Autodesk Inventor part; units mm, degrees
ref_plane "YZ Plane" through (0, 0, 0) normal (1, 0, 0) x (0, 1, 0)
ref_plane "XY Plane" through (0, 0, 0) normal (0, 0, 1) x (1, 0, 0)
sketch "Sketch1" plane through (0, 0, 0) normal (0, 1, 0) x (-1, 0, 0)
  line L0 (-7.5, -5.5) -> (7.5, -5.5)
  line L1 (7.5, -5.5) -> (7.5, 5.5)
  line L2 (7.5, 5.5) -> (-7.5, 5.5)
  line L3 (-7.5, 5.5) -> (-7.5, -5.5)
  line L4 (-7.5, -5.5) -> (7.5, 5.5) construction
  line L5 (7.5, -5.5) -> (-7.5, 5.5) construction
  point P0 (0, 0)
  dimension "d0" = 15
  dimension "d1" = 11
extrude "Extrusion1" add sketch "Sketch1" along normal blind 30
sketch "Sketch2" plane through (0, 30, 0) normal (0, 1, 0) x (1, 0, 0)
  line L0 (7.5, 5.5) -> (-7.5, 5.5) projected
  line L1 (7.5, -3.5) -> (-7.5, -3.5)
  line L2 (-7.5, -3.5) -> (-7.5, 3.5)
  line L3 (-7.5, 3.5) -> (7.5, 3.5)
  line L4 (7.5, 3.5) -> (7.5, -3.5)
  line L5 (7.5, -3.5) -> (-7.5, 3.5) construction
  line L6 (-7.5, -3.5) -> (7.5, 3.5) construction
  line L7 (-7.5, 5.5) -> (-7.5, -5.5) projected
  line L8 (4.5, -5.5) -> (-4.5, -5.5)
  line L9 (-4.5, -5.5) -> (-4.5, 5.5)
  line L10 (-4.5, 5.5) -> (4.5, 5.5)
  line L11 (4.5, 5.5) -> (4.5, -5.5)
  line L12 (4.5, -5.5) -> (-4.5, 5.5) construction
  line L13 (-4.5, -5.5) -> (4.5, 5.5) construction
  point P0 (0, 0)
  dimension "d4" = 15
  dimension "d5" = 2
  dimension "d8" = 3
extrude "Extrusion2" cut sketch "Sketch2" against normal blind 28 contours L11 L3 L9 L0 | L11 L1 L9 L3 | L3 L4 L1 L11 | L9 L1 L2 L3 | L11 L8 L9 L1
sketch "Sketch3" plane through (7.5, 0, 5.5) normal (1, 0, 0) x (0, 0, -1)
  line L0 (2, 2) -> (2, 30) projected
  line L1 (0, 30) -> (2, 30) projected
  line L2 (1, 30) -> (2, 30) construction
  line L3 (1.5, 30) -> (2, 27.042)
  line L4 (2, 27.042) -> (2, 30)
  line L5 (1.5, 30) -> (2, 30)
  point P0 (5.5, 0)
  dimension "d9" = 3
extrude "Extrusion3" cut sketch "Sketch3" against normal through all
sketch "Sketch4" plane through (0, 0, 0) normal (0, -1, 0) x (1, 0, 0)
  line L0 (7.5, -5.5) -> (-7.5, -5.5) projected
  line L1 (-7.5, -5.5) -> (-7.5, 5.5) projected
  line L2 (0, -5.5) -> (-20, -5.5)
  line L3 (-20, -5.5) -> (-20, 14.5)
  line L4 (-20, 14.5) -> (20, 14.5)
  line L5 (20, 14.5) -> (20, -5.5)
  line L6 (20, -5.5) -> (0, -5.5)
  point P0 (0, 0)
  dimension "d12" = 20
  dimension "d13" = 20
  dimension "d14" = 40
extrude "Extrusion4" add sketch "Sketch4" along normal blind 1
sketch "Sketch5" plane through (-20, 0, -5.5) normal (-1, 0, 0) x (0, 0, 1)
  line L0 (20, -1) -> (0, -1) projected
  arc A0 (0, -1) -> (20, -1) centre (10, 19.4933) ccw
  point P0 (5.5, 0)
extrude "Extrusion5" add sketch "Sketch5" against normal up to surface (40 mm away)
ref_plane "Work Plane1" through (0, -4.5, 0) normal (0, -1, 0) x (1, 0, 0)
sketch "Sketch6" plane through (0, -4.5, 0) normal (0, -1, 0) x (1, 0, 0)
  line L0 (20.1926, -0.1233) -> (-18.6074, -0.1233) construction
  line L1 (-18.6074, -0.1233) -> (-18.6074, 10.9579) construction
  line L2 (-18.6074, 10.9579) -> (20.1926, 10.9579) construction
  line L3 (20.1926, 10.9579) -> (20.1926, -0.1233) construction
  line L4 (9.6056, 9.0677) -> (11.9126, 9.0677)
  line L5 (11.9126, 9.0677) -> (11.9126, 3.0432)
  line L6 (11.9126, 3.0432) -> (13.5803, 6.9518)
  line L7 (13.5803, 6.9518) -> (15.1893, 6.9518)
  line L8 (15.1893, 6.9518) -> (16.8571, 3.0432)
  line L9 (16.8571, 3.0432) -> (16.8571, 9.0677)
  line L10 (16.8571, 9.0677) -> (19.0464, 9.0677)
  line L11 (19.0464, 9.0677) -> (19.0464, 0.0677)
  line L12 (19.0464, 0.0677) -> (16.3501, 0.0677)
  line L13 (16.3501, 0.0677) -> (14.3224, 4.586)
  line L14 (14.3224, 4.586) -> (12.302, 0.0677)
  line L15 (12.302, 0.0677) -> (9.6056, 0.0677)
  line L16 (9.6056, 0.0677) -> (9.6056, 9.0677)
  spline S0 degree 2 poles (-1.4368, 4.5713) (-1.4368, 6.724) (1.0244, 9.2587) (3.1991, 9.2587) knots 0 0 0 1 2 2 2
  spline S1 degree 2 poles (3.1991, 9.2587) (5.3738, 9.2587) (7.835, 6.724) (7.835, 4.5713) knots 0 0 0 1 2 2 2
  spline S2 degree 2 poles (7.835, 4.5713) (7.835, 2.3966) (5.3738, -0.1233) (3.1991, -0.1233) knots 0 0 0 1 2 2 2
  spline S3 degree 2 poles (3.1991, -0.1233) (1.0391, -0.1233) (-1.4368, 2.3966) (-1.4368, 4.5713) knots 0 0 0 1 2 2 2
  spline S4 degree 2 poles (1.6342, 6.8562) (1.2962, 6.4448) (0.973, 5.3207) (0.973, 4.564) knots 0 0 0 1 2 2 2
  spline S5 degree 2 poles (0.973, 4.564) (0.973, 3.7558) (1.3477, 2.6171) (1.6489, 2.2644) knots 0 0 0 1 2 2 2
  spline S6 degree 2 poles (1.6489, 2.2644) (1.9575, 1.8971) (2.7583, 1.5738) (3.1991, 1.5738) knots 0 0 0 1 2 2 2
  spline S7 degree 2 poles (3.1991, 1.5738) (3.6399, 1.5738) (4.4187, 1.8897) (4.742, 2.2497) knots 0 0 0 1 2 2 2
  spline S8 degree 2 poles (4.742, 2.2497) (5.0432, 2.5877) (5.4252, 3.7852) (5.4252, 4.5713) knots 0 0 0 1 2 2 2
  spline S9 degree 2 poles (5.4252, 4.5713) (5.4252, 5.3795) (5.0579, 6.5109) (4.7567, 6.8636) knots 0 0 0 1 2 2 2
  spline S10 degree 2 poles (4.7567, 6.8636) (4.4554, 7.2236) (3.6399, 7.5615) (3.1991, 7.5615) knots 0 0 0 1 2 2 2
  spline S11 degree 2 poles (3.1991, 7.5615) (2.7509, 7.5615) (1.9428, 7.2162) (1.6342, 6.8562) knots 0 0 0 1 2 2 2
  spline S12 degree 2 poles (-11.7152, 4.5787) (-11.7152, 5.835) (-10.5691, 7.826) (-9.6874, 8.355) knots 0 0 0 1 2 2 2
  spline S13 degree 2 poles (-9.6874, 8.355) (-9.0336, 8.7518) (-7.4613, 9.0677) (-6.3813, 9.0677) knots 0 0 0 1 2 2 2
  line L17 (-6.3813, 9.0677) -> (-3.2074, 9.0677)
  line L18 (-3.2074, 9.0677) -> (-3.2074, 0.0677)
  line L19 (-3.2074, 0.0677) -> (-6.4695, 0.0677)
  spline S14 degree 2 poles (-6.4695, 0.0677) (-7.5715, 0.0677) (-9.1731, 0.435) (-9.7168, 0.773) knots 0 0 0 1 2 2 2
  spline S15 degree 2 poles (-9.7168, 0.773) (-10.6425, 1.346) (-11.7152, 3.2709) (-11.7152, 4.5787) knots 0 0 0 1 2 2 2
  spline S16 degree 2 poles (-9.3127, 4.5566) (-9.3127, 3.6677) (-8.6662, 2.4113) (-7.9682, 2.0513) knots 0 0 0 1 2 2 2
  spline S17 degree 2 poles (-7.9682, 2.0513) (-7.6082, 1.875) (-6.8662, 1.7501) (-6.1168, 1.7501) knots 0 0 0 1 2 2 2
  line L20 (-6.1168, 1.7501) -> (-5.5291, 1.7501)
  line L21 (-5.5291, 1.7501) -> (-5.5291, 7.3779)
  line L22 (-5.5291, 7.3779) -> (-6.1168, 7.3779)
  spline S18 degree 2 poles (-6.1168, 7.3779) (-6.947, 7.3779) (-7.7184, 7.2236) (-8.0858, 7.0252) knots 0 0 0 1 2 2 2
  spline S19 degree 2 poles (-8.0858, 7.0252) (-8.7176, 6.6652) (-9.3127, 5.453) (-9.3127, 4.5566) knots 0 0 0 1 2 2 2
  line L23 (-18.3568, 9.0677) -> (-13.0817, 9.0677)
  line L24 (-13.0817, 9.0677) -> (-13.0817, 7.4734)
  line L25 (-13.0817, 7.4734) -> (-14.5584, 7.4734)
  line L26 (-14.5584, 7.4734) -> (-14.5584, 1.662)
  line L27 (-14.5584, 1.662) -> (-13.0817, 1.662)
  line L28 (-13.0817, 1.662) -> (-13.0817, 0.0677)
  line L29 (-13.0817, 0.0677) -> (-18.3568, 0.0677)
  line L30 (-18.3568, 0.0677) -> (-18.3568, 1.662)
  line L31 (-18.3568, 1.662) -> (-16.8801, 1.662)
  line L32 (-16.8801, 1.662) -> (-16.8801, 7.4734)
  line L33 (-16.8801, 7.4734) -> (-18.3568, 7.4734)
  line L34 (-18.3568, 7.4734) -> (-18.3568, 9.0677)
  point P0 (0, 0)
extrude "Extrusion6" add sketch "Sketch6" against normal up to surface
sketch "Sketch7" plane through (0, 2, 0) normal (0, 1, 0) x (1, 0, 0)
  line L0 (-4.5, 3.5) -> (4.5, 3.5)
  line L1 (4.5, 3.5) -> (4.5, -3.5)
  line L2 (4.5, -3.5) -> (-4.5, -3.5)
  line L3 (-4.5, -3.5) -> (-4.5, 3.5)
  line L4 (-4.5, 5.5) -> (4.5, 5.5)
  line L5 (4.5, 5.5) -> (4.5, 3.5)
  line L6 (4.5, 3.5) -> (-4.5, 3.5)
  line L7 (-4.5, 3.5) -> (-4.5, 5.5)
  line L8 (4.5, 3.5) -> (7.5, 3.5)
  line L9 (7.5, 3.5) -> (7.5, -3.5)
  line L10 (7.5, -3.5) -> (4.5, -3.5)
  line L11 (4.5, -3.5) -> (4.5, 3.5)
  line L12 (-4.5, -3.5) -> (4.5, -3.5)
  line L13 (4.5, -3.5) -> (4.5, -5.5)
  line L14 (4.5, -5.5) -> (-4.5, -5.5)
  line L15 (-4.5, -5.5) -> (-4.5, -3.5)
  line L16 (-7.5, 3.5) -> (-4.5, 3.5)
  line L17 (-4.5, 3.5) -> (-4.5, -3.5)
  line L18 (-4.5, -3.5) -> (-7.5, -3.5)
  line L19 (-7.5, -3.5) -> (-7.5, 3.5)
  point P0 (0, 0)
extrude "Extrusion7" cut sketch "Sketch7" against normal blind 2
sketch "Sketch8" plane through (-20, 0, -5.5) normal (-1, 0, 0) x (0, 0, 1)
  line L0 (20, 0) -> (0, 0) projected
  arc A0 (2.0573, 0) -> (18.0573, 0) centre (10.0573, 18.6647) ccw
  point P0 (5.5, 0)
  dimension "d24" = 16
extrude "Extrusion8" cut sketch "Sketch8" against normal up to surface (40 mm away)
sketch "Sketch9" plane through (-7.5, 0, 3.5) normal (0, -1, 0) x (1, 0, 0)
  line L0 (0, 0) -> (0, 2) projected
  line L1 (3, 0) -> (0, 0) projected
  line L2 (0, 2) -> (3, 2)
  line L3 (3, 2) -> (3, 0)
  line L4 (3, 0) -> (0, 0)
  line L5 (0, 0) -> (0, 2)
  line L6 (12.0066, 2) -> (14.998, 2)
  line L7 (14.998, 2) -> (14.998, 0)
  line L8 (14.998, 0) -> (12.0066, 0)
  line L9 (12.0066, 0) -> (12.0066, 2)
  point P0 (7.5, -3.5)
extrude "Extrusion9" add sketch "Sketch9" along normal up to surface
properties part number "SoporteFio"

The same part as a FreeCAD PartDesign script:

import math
import FreeCAD as App
import Part
import Sketcher
from FreeCAD import Vector
Q = App.Units.Quantity

doc = App.newDocument("Part")
body = doc.addObject("PartDesign::Body", "Body")
body.AllowCompound = True

sketch1 = doc.addObject("Sketcher::SketchObject", "Sketch")
body.addObject(sketch1)
sketch1.AttachmentSupport = (doc.XZ_Plane, [""])
sketch1.MapMode = "FlatFace"
sketch1.addGeometry([
    Part.LineSegment(Vector(7.5, 5.5, 0), Vector(7.5, -5.5, 0)),
    Part.LineSegment(Vector(7.5, -5.5, 0), Vector(-7.5, -5.5, 0)),
    Part.LineSegment(Vector(-7.5, -5.5, 0), Vector(-7.5, 5.5, 0)),
    Part.LineSegment(Vector(-7.5, 5.5, 0), Vector(7.5, 5.5, 0)),
], False)
sketch1.addConstraint([
    Sketcher.Constraint("Coincident", 0, 2, 1, 1),
    Sketcher.Constraint("Coincident", 1, 2, 2, 1),
    Sketcher.Constraint("Coincident", 2, 2, 3, 1),
    Sketcher.Constraint("Coincident", 3, 2, 0, 1),
    Sketcher.Constraint("Vertical", 0),
    Sketcher.Constraint("Horizontal", 1),
    Sketcher.Constraint("Vertical", 2),
    Sketcher.Constraint("Horizontal", 3),
    Sketcher.Constraint("Symmetric", 0, 2, 2, 2, -1, 1),
    Sketcher.Constraint("DistanceX", 1, 2, 1, 1, Q("15 mm")),
    Sketcher.Constraint("DistanceY", 0, 2, 0, 1, Q("11 mm")),
])
pad1 = doc.addObject("PartDesign::Pad", "Pad")
body.addObject(pad1)
pad1.Profile = sketch1
pad1.Length = 30
pad1.Reversed = True

sketch2 = doc.addObject("Sketcher::SketchObject", "Sketch001")
body.addObject(sketch2)
sketch2.AttachmentSupport = (doc.XZ_Plane, [""])
sketch2.MapMode = "FlatFace"
sketch2.AttachmentOffset = App.Placement(Vector(0, 0, -30), App.Rotation())
sketch2.addGeometry([
    Part.LineSegment(Vector(4.5, -3.5, 0), Vector(4.5, -5.5, 0)),
    Part.LineSegment(Vector(4.5, -5.5, 0), Vector(-4.5, -5.5, 0)),
    Part.LineSegment(Vector(-4.5, -5.5, 0), Vector(-4.5, -3.5, 0)),
    Part.LineSegment(Vector(-4.5, -3.5, 0), Vector(-7.5, -3.5, 0)),
    Part.LineSegment(Vector(-7.5, -3.5, 0), Vector(-7.5, 3.5, 0)),
    Part.LineSegment(Vector(-7.5, 3.5, 0), Vector(-4.5, 3.5, 0)),
    Part.LineSegment(Vector(-4.5, 3.5, 0), Vector(-4.5, 5.5, 0)),
    Part.LineSegment(Vector(-4.5, 5.5, 0), Vector(4.5, 5.5, 0)),
    Part.LineSegment(Vector(4.5, 5.5, 0), Vector(4.5, 3.5, 0)),
    Part.LineSegment(Vector(4.5, 3.5, 0), Vector(7.5, 3.5, 0)),
    Part.LineSegment(Vector(7.5, 3.5, 0), Vector(7.5, -3.5, 0)),
    Part.LineSegment(Vector(7.5, -3.5, 0), Vector(4.5, -3.5, 0)),
], False)
sketch2.addConstraint([
    Sketcher.Constraint("Coincident", 0, 2, 1, 1),
    Sketcher.Constraint("Coincident", 1, 2, 2, 1),
    Sketcher.Constraint("Coincident", 2, 2, 3, 1),
    Sketcher.Constraint("Coincident", 3, 2, 4, 1),
    Sketcher.Constraint("Coincident", 4, 2, 5, 1),
    Sketcher.Constraint("Coincident", 5, 2, 6, 1),
    Sketcher.Constraint("Coincident", 6, 2, 7, 1),
    Sketcher.Constraint("Coincident", 7, 2, 8, 1),
    Sketcher.Constraint("Coincident", 8, 2, 9, 1),
    Sketcher.Constraint("Coincident", 9, 2, 10, 1),
    Sketcher.Constraint("Coincident", 10, 2, 11, 1),
    Sketcher.Constraint("Coincident", 11, 2, 0, 1),
    Sketcher.Constraint("Vertical", 0),
    Sketcher.Constraint("Horizontal", 1),
    Sketcher.Constraint("Vertical", 2),
    Sketcher.Constraint("Horizontal", 3),
    Sketcher.Constraint("Vertical", 4),
    Sketcher.Constraint("Horizontal", 5),
    Sketcher.Constraint("Vertical", 6),
    Sketcher.Constraint("Horizontal", 7),
    Sketcher.Constraint("Vertical", 8),
    Sketcher.Constraint("Horizontal", 9),
    Sketcher.Constraint("Vertical", 10),
    Sketcher.Constraint("Horizontal", 11),
    Sketcher.Constraint("Symmetric", 0, 2, 6, 2, -1, 1),
    Sketcher.Constraint("Symmetric", 2, 2, 8, 2, -1, 1),
    Sketcher.Constraint("Symmetric", 4, 2, 10, 2, -1, 1),
    Sketcher.Constraint("Symmetric", 5, 2, 8, 2, -2),
    Sketcher.Constraint("DistanceX", 3, 2, 3, 1, Q("3 mm")),
    Sketcher.Constraint("DistanceY", 0, 2, 0, 1, Q("2 mm")),
    Sketcher.Constraint("DistanceX", 1, 2, 1, 1, Q("9 mm")),
    Sketcher.Constraint("DistanceY", 4, 1, 4, 2, Q("7 mm")),
])
pocket1 = doc.addObject("PartDesign::Pocket", "Pocket")
body.addObject(pocket1)
pocket1.Profile = sketch2
pocket1.Length = 28
pocket1.Reversed = True

sketch3 = doc.addObject("Sketcher::SketchObject", "Sketch002")
body.addObject(sketch3)
sketch3.AttachmentSupport = (doc.YZ_Plane, [""])
sketch3.MapMode = "FlatFace"
sketch3.AttachmentOffset = App.Placement(Vector(0, 0, 7.5), App.Rotation())
sketch3.addGeometry([
    Part.LineSegment(Vector(30, 4, 0), Vector(27.042, 3.5, 0)),
    Part.LineSegment(Vector(27.042, 3.5, 0), Vector(30, 3.5, 0)),
    Part.LineSegment(Vector(30, 3.5, 0), Vector(30, 4, 0)),
], False)
sketch3.addConstraint([
    Sketcher.Constraint("Coincident", 0, 2, 1, 1),
    Sketcher.Constraint("Coincident", 1, 2, 2, 1),
    Sketcher.Constraint("Coincident", 2, 2, 0, 1),
    Sketcher.Constraint("Horizontal", 1),
    Sketcher.Constraint("Vertical", 2),
    Sketcher.Constraint("Distance", 0, Q("3 mm")),
    Sketcher.Constraint("DistanceY", 2, 1, 2, 2, Q("0.5 mm")),
    Sketcher.Constraint("DistanceX", -1, 1, 1, 2, Q("30 mm")),
    Sketcher.Constraint("DistanceY", -1, 1, 2, 2, Q("4 mm")),
])
pocket2 = doc.addObject("PartDesign::Pocket", "Pocket001")
body.addObject(pocket2)
pocket2.Profile = sketch3
pocket2.Type = "ThroughAll"

sketch4 = doc.addObject("Sketcher::SketchObject", "Sketch003")
body.addObject(sketch4)
sketch4.AttachmentSupport = (doc.XZ_Plane, [""])
sketch4.MapMode = "FlatFace"
sketch4.addGeometry([
    Part.LineSegment(Vector(-20, -5.5, 0), Vector(20, -5.5, 0)),
    Part.LineSegment(Vector(20, -5.5, 0), Vector(20, 14.5, 0)),
    Part.LineSegment(Vector(20, 14.5, 0), Vector(-20, 14.5, 0)),
    Part.LineSegment(Vector(-20, 14.5, 0), Vector(-20, -5.5, 0)),
], False)
sketch4.addConstraint([
    Sketcher.Constraint("Coincident", 0, 2, 1, 1),
    Sketcher.Constraint("Coincident", 1, 2, 2, 1),
    Sketcher.Constraint("Coincident", 2, 2, 3, 1),
    Sketcher.Constraint("Coincident", 3, 2, 0, 1),
    Sketcher.Constraint("Horizontal", 0),
    Sketcher.Constraint("Vertical", 1),
    Sketcher.Constraint("Horizontal", 2),
    Sketcher.Constraint("Vertical", 3),
    Sketcher.Constraint("DistanceX", 0, 1, 0, 2, Q("40 mm")),
    Sketcher.Constraint("DistanceY", 1, 1, 1, 2, Q("20 mm")),
    Sketcher.Constraint("DistanceX", -1, 1, 0, 2, Q("20 mm")),
    Sketcher.Constraint("DistanceY", 0, 2, -1, 1, Q("5.5 mm")),
])
pad2 = doc.addObject("PartDesign::Pad", "Pad001")
body.addObject(pad2)
pad2.Profile = sketch4
pad2.Length = 1

sketch5 = doc.addObject("Sketcher::SketchObject", "Sketch004")
body.addObject(sketch5)
sketch5.AttachmentSupport = (doc.YZ_Plane, [""])
sketch5.MapMode = "FlatFace"
sketch5.AttachmentOffset = App.Placement(Vector(0, 0, -20), App.Rotation())
sketch5.addGeometry([
    Part.ArcOfCircle(Part.Circle(Vector(19.4933, 4.5, 0), Vector(0, 0, 1), 22.802968), math.radians(153.989273), math.radians(206.010727)),
    Part.LineSegment(Vector(-1, 14.5, 0), Vector(-1, -5.5, 0)),
], False)
sketch5.addConstraint([
    Sketcher.Constraint("Coincident", 0, 1, 1, 1),
    Sketcher.Constraint("Coincident", 1, 2, 0, 2),
    Sketcher.Constraint("Vertical", 1),
    Sketcher.Constraint("DistanceY", 1, 2, 1, 1, Q("20 mm")),
    Sketcher.Constraint("DistanceX", 0, 1, -1, 1, Q("1 mm")),
    Sketcher.Constraint("Radius", 0, Q("22.803 mm")),
    Sketcher.Constraint("DistanceY", -1, 1, 0, 3, Q("4.5 mm")),
])
pad3 = doc.addObject("PartDesign::Pad", "Pad002")
body.addObject(pad3)
pad3.Profile = sketch5
pad3.Length = 40

sketch6 = doc.addObject("Sketcher::SketchObject", "Sketch005")
body.addObject(sketch6)
sketch6.AttachmentSupport = (doc.XZ_Plane, [""])
sketch6.MapMode = "FlatFace"
sketch6.AttachmentOffset = App.Placement(Vector(0, 0, 4.5), App.Rotation())
sketch6.addGeometry([
    Part.LineSegment(Vector(11.9126, 9.0677, 0), Vector(9.6056, 9.0677, 0)),
    Part.LineSegment(Vector(9.6056, 9.0677, 0), Vector(9.6056, 0.0677, 0)),
    Part.LineSegment(Vector(9.6056, 0.0677, 0), Vector(12.302, 0.0677, 0)),
    Part.LineSegment(Vector(12.302, 0.0677, 0), Vector(14.3224, 4.586, 0)),
    Part.LineSegment(Vector(14.3224, 4.586, 0), Vector(16.3501, 0.0677, 0)),
    Part.LineSegment(Vector(16.3501, 0.0677, 0), Vector(19.0464, 0.0677, 0)),
    Part.LineSegment(Vector(19.0464, 0.0677, 0), Vector(19.0464, 9.0677, 0)),
    Part.LineSegment(Vector(19.0464, 9.0677, 0), Vector(16.8571, 9.0677, 0)),
    Part.LineSegment(Vector(16.8571, 9.0677, 0), Vector(16.8571, 3.0432, 0)),
    Part.LineSegment(Vector(16.8571, 3.0432, 0), Vector(15.1893, 6.9518, 0)),
    Part.LineSegment(Vector(15.1893, 6.9518, 0), Vector(13.5803, 6.9518, 0)),
    Part.LineSegment(Vector(13.5803, 6.9518, 0), Vector(11.9126, 3.0432, 0)),
    Part.LineSegment(Vector(11.9126, 3.0432, 0), Vector(11.9126, 9.0677, 0)),
    Part.BSplineCurve([Vector(-1.4368, 4.5713, 0), Vector(-1.4368, 6.724, 0), Vector(1.0244, 9.2587, 0), Vector(3.1991, 9.2587, 0)], [3, 1, 3], [0, 1, 2], False, 2, [1, 1, 1, 1], False),
    Part.BSplineCurve([Vector(3.1991, -0.1233, 0), Vector(1.0391, -0.1233, 0), Vector(-1.4368, 2.3966, 0), Vector(-1.4368, 4.5713, 0)], [3, 1, 3], [0, 1, 2], False, 2, [1, 1, 1, 1], False),
    Part.BSplineCurve([Vector(7.835, 4.5713, 0), Vector(7.835, 2.3966, 0), Vector(5.3738, -0.1233, 0), Vector(3.1991, -0.1233, 0)], [3, 1, 3], [0, 1, 2], False, 2, [1, 1, 1, 1], False),
    Part.BSplineCurve([Vector(3.1991, 9.2587, 0), Vector(5.3738, 9.2587, 0), Vector(7.835, 6.724, 0), Vector(7.835, 4.5713, 0)], [3, 1, 3], [0, 1, 2], False, 2, [1, 1, 1, 1], False),
    Part.BSplineCurve([Vector(1.6342, 6.8562, 0), Vector(1.2962, 6.4448, 0), Vector(0.973, 5.3207, 0), Vector(0.973, 4.564, 0)], [3, 1, 3], [0, 1, 2], False, 2, [1, 1, 1, 1], False),
    Part.BSplineCurve([Vector(3.1991, 7.5615, 0), Vector(2.7509, 7.5615, 0), Vector(1.9428, 7.2162, 0), Vector(1.6342, 6.8562, 0)], [3, 1, 3], [0, 1, 2], False, 2, [1, 1, 1, 1], False),
    Part.BSplineCurve([Vector(4.7567, 6.8636, 0), Vector(4.4554, 7.2236, 0), Vector(3.6399, 7.5615, 0), Vector(3.1991, 7.5615, 0)], [3, 1, 3], [0, 1, 2], False, 2, [1, 1, 1, 1], False),
    Part.BSplineCurve([Vector(5.4252, 4.5713, 0), Vector(5.4252, 5.3795, 0), Vector(5.0579, 6.5109, 0), Vector(4.7567, 6.8636, 0)], [3, 1, 3], [0, 1, 2], False, 2, [1, 1, 1, 1], False),
    Part.BSplineCurve([Vector(4.742, 2.2497, 0), Vector(5.0432, 2.5877, 0), Vector(5.4252, 3.7852, 0), Vector(5.4252, 4.5713, 0)], [3, 1, 3], [0, 1, 2], False, 2, [1, 1, 1, 1], False),
    Part.BSplineCurve([Vector(3.1991, 1.5738, 0), Vector(3.6399, 1.5738, 0), Vector(4.4187, 1.8897, 0), Vector(4.742, 2.2497, 0)], [3, 1, 3], [0, 1, 2], False, 2, [1, 1, 1, 1], False),
    Part.BSplineCurve([Vector(1.6489, 2.2644, 0), Vector(1.9575, 1.8971, 0), Vector(2.7583, 1.5738, 0), Vector(3.1991, 1.5738, 0)], [3, 1, 3], [0, 1, 2], False, 2, [1, 1, 1, 1], False),
    Part.BSplineCurve([Vector(0.973, 4.564, 0), Vector(0.973, 3.7558, 0), Vector(1.3477, 2.6171, 0), Vector(1.6489, 2.2644, 0)], [3, 1, 3], [0, 1, 2], False, 2, [1, 1, 1, 1], False),
    Part.BSplineCurve([Vector(-11.7152, 4.5787, 0), Vector(-11.7152, 5.835, 0), Vector(-10.5691, 7.826, 0), Vector(-9.6874, 8.355, 0)], [3, 1, 3], [0, 1, 2], False, 2, [1, 1, 1, 1], False),
    Part.BSplineCurve([Vector(-9.7168, 0.773, 0), Vector(-10.6425, 1.346, 0), Vector(-11.7152, 3.2709, 0), Vector(-11.7152, 4.5787, 0)], [3, 1, 3], [0, 1, 2], False, 2, [1, 1, 1, 1], False),
    Part.BSplineCurve([Vector(-6.4695, 0.0677, 0), Vector(-7.5715, 0.0677, 0), Vector(-9.1731, 0.435, 0), Vector(-9.7168, 0.773, 0)], [3, 1, 3], [0, 1, 2], False, 2, [1, 1, 1, 1], False),
    Part.LineSegment(Vector(-6.4695, 0.0677, 0), Vector(-3.2074, 0.0677, 0)),
    Part.LineSegment(Vector(-3.2074, 0.0677, 0), Vector(-3.2074, 9.0677, 0)),
    Part.LineSegment(Vector(-3.2074, 9.0677, 0), Vector(-6.3813, 9.0677, 0)),
    Part.BSplineCurve([Vector(-9.6874, 8.355, 0), Vector(-9.0336, 8.7518, 0), Vector(-7.4613, 9.0677, 0), Vector(-6.3813, 9.0677, 0)], [3, 1, 3], [0, 1, 2], False, 2, [1, 1, 1, 1], False),
    Part.BSplineCurve([Vector(-9.3127, 4.5566, 0), Vector(-9.3127, 3.6677, 0), Vector(-8.6662, 2.4113, 0), Vector(-7.9682, 2.0513, 0)], [3, 1, 3], [0, 1, 2], False, 2, [1, 1, 1, 1], False),
    Part.BSplineCurve([Vector(-8.0858, 7.0252, 0), Vector(-8.7176, 6.6652, 0), Vector(-9.3127, 5.453, 0), Vector(-9.3127, 4.5566, 0)], [3, 1, 3], [0, 1, 2], False, 2, [1, 1, 1, 1], False),
    Part.BSplineCurve([Vector(-6.1168, 7.3779, 0), Vector(-6.947, 7.3779, 0), Vector(-7.7184, 7.2236, 0), Vector(-8.0858, 7.0252, 0)], [3, 1, 3], [0, 1, 2], False, 2, [1, 1, 1, 1], False),
    Part.LineSegment(Vector(-6.1168, 7.3779, 0), Vector(-5.5291, 7.3779, 0)),
    Part.LineSegment(Vector(-5.5291, 7.3779, 0), Vector(-5.5291, 1.7501, 0)),
    Part.LineSegment(Vector(-5.5291, 1.7501, 0), Vector(-6.1168, 1.7501, 0)),
    Part.BSplineCurve([Vector(-7.9682, 2.0513, 0), Vector(-7.6082, 1.875, 0), Vector(-6.8662, 1.7501, 0), Vector(-6.1168, 1.7501, 0)], [3, 1, 3], [0, 1, 2], False, 2, [1, 1, 1, 1], False),
    Part.LineSegment(Vector(-13.0817, 9.0677, 0), Vector(-18.3568, 9.0677, 0)),
    Part.LineSegment(Vector(-18.3568, 9.0677, 0), Vector(-18.3568, 7.4734, 0)),
    Part.LineSegment(Vector(-18.3568, 7.4734, 0), Vector(-16.8801, 7.4734, 0)),
    Part.LineSegment(Vector(-16.8801, 7.4734, 0), Vector(-16.8801, 1.662, 0)),
    Part.LineSegment(Vector(-16.8801, 1.662, 0), Vector(-18.3568, 1.662, 0)),
    Part.LineSegment(Vector(-18.3568, 1.662, 0), Vector(-18.3568, 0.0677, 0)),
    Part.LineSegment(Vector(-18.3568, 0.0677, 0), Vector(-13.0817, 0.0677, 0)),
    Part.LineSegment(Vector(-13.0817, 0.0677, 0), Vector(-13.0817, 1.662, 0)),
    Part.LineSegment(Vector(-13.0817, 1.662, 0), Vector(-14.5584, 1.662, 0)),
    Part.LineSegment(Vector(-14.5584, 1.662, 0), Vector(-14.5584, 7.4734, 0)),
    Part.LineSegment(Vector(-14.5584, 7.4734, 0), Vector(-13.0817, 7.4734, 0)),
    Part.LineSegment(Vector(-13.0817, 7.4734, 0), Vector(-13.0817, 9.0677, 0)),
], False)
sketch6.addConstraint([
    Sketcher.Constraint("Block", 13),
    Sketcher.Constraint("Block", 14),
    Sketcher.Constraint("Block", 15),
    Sketcher.Constraint("Block", 16),
    Sketcher.Constraint("Block", 17),
    Sketcher.Constraint("Block", 18),
    Sketcher.Constraint("Block", 19),
    Sketcher.Constraint("Block", 20),
    Sketcher.Constraint("Block", 21),
    Sketcher.Constraint("Block", 22),
    Sketcher.Constraint("Block", 23),
    Sketcher.Constraint("Block", 24),
    Sketcher.Constraint("Block", 25),
    Sketcher.Constraint("Block", 26),
    Sketcher.Constraint("Block", 27),
    Sketcher.Constraint("Block", 31),
    Sketcher.Constraint("Block", 32),
    Sketcher.Constraint("Block", 33),
    Sketcher.Constraint("Block", 34),
    Sketcher.Constraint("Block", 38),
    Sketcher.Constraint("Coincident", 0, 2, 1, 1),
    Sketcher.Constraint("Coincident", 1, 2, 2, 1),
    Sketcher.Constraint("Coincident", 2, 2, 3, 1),
    Sketcher.Constraint("Coincident", 3, 2, 4, 1),
    Sketcher.Constraint("Coincident", 4, 2, 5, 1),
    Sketcher.Constraint("Coincident", 5, 2, 6, 1),
    Sketcher.Constraint("Coincident", 6, 2, 7, 1),
    Sketcher.Constraint("Coincident", 7, 2, 8, 1),
    Sketcher.Constraint("Coincident", 8, 2, 9, 1),
    Sketcher.Constraint("Coincident", 9, 2, 10, 1),
    Sketcher.Constraint("Coincident", 10, 2, 11, 1),
    Sketcher.Constraint("Coincident", 11, 2, 12, 1),
    Sketcher.Constraint("Coincident", 12, 2, 0, 1),
    Sketcher.Constraint("Coincident", 27, 1, 28, 1),
    Sketcher.Constraint("Coincident", 28, 2, 29, 1),
    Sketcher.Constraint("Coincident", 29, 2, 30, 1),
    Sketcher.Constraint("Coincident", 30, 2, 31, 2),
    Sketcher.Constraint("Coincident", 34, 1, 35, 1),
    Sketcher.Constraint("Coincident", 35, 2, 36, 1),
    Sketcher.Constraint("Coincident", 36, 2, 37, 1),
    Sketcher.Constraint("Coincident", 37, 2, 38, 2),
    Sketcher.Constraint("Coincident", 39, 2, 40, 1),
    Sketcher.Constraint("Coincident", 40, 2, 41, 1),
    Sketcher.Constraint("Coincident", 41, 2, 42, 1),
    Sketcher.Constraint("Coincident", 42, 2, 43, 1),
    Sketcher.Constraint("Coincident", 43, 2, 44, 1),
    Sketcher.Constraint("Coincident", 44, 2, 45, 1),
    Sketcher.Constraint("Coincident", 45, 2, 46, 1),
    Sketcher.Constraint("Coincident", 46, 2, 47, 1),
    Sketcher.Constraint("Coincident", 47, 2, 48, 1),
    Sketcher.Constraint("Coincident", 48, 2, 49, 1),
    Sketcher.Constraint("Coincident", 49, 2, 50, 1),
    Sketcher.Constraint("Coincident", 50, 2, 39, 1),
    Sketcher.Constraint("Horizontal", 0),
    Sketcher.Constraint("Vertical", 1),
    Sketcher.Constraint("Horizontal", 2),
    Sketcher.Constraint("Horizontal", 5),
    Sketcher.Constraint("Vertical", 6),
    Sketcher.Constraint("Horizontal", 7),
    Sketcher.Constraint("Vertical", 8),
    Sketcher.Constraint("Horizontal", 10),
    Sketcher.Constraint("Vertical", 12),
    Sketcher.Constraint("Horizontal", 28),
    Sketcher.Constraint("Vertical", 29),
    Sketcher.Constraint("Horizontal", 30),
    Sketcher.Constraint("Horizontal", 35),
    Sketcher.Constraint("Vertical", 36),
    Sketcher.Constraint("Horizontal", 37),
    Sketcher.Constraint("Horizontal", 39),
    Sketcher.Constraint("Vertical", 40),
    Sketcher.Constraint("Horizontal", 41),
    Sketcher.Constraint("Vertical", 42),
    Sketcher.Constraint("Horizontal", 43),
    Sketcher.Constraint("Vertical", 44),
    Sketcher.Constraint("Horizontal", 45),
    Sketcher.Constraint("Vertical", 46),
    Sketcher.Constraint("Horizontal", 47),
    Sketcher.Constraint("Vertical", 48),
    Sketcher.Constraint("Horizontal", 49),
    Sketcher.Constraint("Vertical", 50),
    Sketcher.Constraint("Horizontal", 2, 2, 4, 2),
    Sketcher.Constraint("Horizontal", 0, 2, 6, 2),
    Sketcher.Constraint("Horizontal", 8, 2, 11, 2),
    Sketcher.Constraint("Horizontal", 5, 2, 28, 2),
    Sketcher.Constraint("Horizontal", 12, 2, 29, 2),
    Sketcher.Constraint("Horizontal", 30, 2, 39, 2),
    Sketcher.Constraint("Horizontal", 28, 2, 44, 2),
    Sketcher.Constraint("Horizontal", 43, 2, 46, 2),
    Sketcher.Constraint("Horizontal", 41, 2, 48, 2),
    Sketcher.Constraint("Vertical", 40, 2, 43, 2),
    Sketcher.Constraint("Vertical", 46, 2, 49, 2),
    Sketcher.Constraint("Equal", 2, 5),
    Sketcher.Constraint("Equal", 43, 47),
    Sketcher.Constraint("Equal", 40, 44),
    Sketcher.Constraint("Equal", 9, 11),
    Sketcher.Constraint("Angle", 4, Q("-65.8307 deg")),
    Sketcher.Constraint("DistanceX", 0, 2, 0, 1, Q("2.307 mm")),
    Sketcher.Constraint("DistanceX", 10, 2, 10, 1, Q("1.609 mm")),
    Sketcher.Constraint("DistanceX", 28, 1, 28, 2, Q("3.262 mm")),
    Sketcher.Constraint("DistanceX", 39, 2, 39, 1, Q("5.275 mm")),
    Sketcher.Constraint("DistanceX", -1, 1, 4, 2, Q("16.35 mm")),
    Sketcher.Constraint("DistanceX", 41, 2, -1, 1, Q("16.88 mm")),
    Sketcher.Constraint("DistanceX", 28, 2, 11, 2, Q("15.12 mm")),
    Sketcher.Constraint("DistanceX", 39, 2, 37, 2, Q("12.24 mm")),
    Sketcher.Constraint("DistanceX", 2, 1, 2, 2, Q("2.6964 mm")),
    Sketcher.Constraint("DistanceX", 7, 2, 7, 1, Q("2.1893 mm")),
    Sketcher.Constraint("DistanceX", 35, 1, 35, 2, Q("0.5877 mm")),
    Sketcher.Constraint("DistanceY", 8, 2, 8, 1, Q("6.0245 mm")),
    Sketcher.Constraint("DistanceY", 40, 2, 40, 1, Q("1.5943 mm")),
    Sketcher.Constraint("DistanceY", -1, 1, 3, 2, Q("4.586 mm")),
    Sketcher.Constraint("DistanceY", 9, 2, 7, 2, Q("2.116 mm")),
])
pad4 = doc.addObject("PartDesign::Pad", "Pad003")
body.addObject(pad4)
pad4.Profile = sketch6
pad4.Type = "UpToFirst"
pad4.Reversed = True

sketch7 = doc.addObject("Sketcher::SketchObject", "Sketch006")
body.addObject(sketch7)
sketch7.AttachmentSupport = (doc.XZ_Plane, [""])
sketch7.MapMode = "FlatFace"
sketch7.AttachmentOffset = App.Placement(Vector(0, 0, -2), App.Rotation())
sketch7.addGeometry([
    Part.LineSegment(Vector(-4.5, -5.5, 0), Vector(-4.5, -3.5, 0)),
    Part.LineSegment(Vector(-4.5, -3.5, 0), Vector(-7.5, -3.5, 0)),
    Part.LineSegment(Vector(-7.5, -3.5, 0), Vector(-7.5, 3.5, 0)),
    Part.LineSegment(Vector(-7.5, 3.5, 0), Vector(-4.5, 3.5, 0)),
    Part.LineSegment(Vector(-4.5, 3.5, 0), Vector(-4.5, 5.5, 0)),
    Part.LineSegment(Vector(-4.5, 5.5, 0), Vector(4.5, 5.5, 0)),
    Part.LineSegment(Vector(4.5, 5.5, 0), Vector(4.5, 3.5, 0)),
    Part.LineSegment(Vector(4.5, 3.5, 0), Vector(7.5, 3.5, 0)),
    Part.LineSegment(Vector(7.5, 3.5, 0), Vector(7.5, -3.5, 0)),
    Part.LineSegment(Vector(7.5, -3.5, 0), Vector(4.5, -3.5, 0)),
    Part.LineSegment(Vector(4.5, -3.5, 0), Vector(4.5, -5.5, 0)),
    Part.LineSegment(Vector(4.5, -5.5, 0), Vector(-4.5, -5.5, 0)),
], False)
sketch7.addConstraint([
    Sketcher.Constraint("Coincident", 0, 2, 1, 1),
    Sketcher.Constraint("Coincident", 1, 2, 2, 1),
    Sketcher.Constraint("Coincident", 2, 2, 3, 1),
    Sketcher.Constraint("Coincident", 3, 2, 4, 1),
    Sketcher.Constraint("Coincident", 4, 2, 5, 1),
    Sketcher.Constraint("Coincident", 5, 2, 6, 1),
    Sketcher.Constraint("Coincident", 6, 2, 7, 1),
    Sketcher.Constraint("Coincident", 7, 2, 8, 1),
    Sketcher.Constraint("Coincident", 8, 2, 9, 1),
    Sketcher.Constraint("Coincident", 9, 2, 10, 1),
    Sketcher.Constraint("Coincident", 10, 2, 11, 1),
    Sketcher.Constraint("Coincident", 11, 2, 0, 1),
    Sketcher.Constraint("Vertical", 0),
    Sketcher.Constraint("Horizontal", 1),
    Sketcher.Constraint("Vertical", 2),
    Sketcher.Constraint("Horizontal", 3),
    Sketcher.Constraint("Vertical", 4),
    Sketcher.Constraint("Horizontal", 5),
    Sketcher.Constraint("Vertical", 6),
    Sketcher.Constraint("Horizontal", 7),
    Sketcher.Constraint("Vertical", 8),
    Sketcher.Constraint("Horizontal", 9),
    Sketcher.Constraint("Vertical", 10),
    Sketcher.Constraint("Horizontal", 11),
    Sketcher.Constraint("Symmetric", 0, 2, 6, 2, -1, 1),
    Sketcher.Constraint("Symmetric", 2, 2, 8, 2, -1, 1),
    Sketcher.Constraint("Symmetric", 4, 2, 10, 2, -1, 1),
    Sketcher.Constraint("Symmetric", 3, 2, 6, 2, -2),
    Sketcher.Constraint("DistanceX", 1, 2, 1, 1, Q("3 mm")),
    Sketcher.Constraint("DistanceX", 5, 1, 5, 2, Q("9 mm")),
    Sketcher.Constraint("DistanceY", 0, 1, 0, 2, Q("2 mm")),
    Sketcher.Constraint("DistanceY", 2, 1, 2, 2, Q("7 mm")),
])
pocket3 = doc.addObject("PartDesign::Pocket", "Pocket002")
body.addObject(pocket3)
pocket3.Profile = sketch7
pocket3.Length = 2
pocket3.Reversed = True

sketch8 = doc.addObject("Sketcher::SketchObject", "Sketch007")
body.addObject(sketch8)
sketch8.AttachmentSupport = (doc.YZ_Plane, [""])
sketch8.MapMode = "FlatFace"
sketch8.AttachmentOffset = App.Placement(Vector(0, 0, -20), App.Rotation())
sketch8.addGeometry([
    Part.ArcOfCircle(Part.Circle(Vector(18.6647, 4.5573, 0), Vector(0, 0, 1), 20.306921), math.radians(156.799224), math.radians(203.200776)),
    Part.LineSegment(Vector(0, 12.5573, 0), Vector(0, -3.4427, 0)),
], False)
sketch8.addConstraint([
    Sketcher.Constraint("Coincident", 0, 1, 1, 1),
    Sketcher.Constraint("Coincident", 1, 2, 0, 2),
    Sketcher.Constraint("Vertical", 1),
    Sketcher.Constraint("PointOnObject", 0, 1, -2),
    Sketcher.Constraint("DistanceY", 1, 2, 1, 1, Q("16 mm")),
    Sketcher.Constraint("Radius", 0, Q("20.307 mm")),
    Sketcher.Constraint("DistanceY", -1, 1, 0, 3, Q("4.5573 mm")),
])
pocket4 = doc.addObject("PartDesign::Pocket", "Pocket003")
body.addObject(pocket4)
pocket4.Profile = sketch8
pocket4.Length = 40
pocket4.Reversed = True

sketch9 = doc.addObject("Sketcher::SketchObject", "Sketch008")
body.addObject(sketch9)
sketch9.AttachmentSupport = (doc.XZ_Plane, [""])
sketch9.MapMode = "FlatFace"
sketch9.addGeometry([
    Part.LineSegment(Vector(-7.5, 5.5, 0), Vector(-7.5, 3.5, 0)),
    Part.LineSegment(Vector(-7.5, 3.5, 0), Vector(-4.5, 3.5, 0)),
    Part.LineSegment(Vector(-4.5, 3.5, 0), Vector(-4.5, 5.5, 0)),
    Part.LineSegment(Vector(-4.5, 5.5, 0), Vector(-7.5, 5.5, 0)),
    Part.LineSegment(Vector(7.498, 5.5, 0), Vector(4.5066, 5.5, 0)),
    Part.LineSegment(Vector(4.5066, 5.5, 0), Vector(4.5066, 3.5, 0)),
    Part.LineSegment(Vector(4.5066, 3.5, 0), Vector(7.498, 3.5, 0)),
    Part.LineSegment(Vector(7.498, 3.5, 0), Vector(7.498, 5.5, 0)),
], False)
sketch9.addConstraint([
    Sketcher.Constraint("Coincident", 0, 2, 1, 1),
    Sketcher.Constraint("Coincident", 1, 2, 2, 1),
    Sketcher.Constraint("Coincident", 2, 2, 3, 1),
    Sketcher.Constraint("Coincident", 3, 2, 0, 1),
    Sketcher.Constraint("Coincident", 4, 2, 5, 1),
    Sketcher.Constraint("Coincident", 5, 2, 6, 1),
    Sketcher.Constraint("Coincident", 6, 2, 7, 1),
    Sketcher.Constraint("Coincident", 7, 2, 4, 1),
    Sketcher.Constraint("Vertical", 0),
    Sketcher.Constraint("Horizontal", 1),
    Sketcher.Constraint("Vertical", 2),
    Sketcher.Constraint("Horizontal", 3),
    Sketcher.Constraint("Horizontal", 4),
    Sketcher.Constraint("Vertical", 5),
    Sketcher.Constraint("Horizontal", 6),
    Sketcher.Constraint("Vertical", 7),
    Sketcher.Constraint("Horizontal", 3, 2, 4, 2),
    Sketcher.Constraint("Horizontal", 1, 2, 5, 2),
    Sketcher.Constraint("DistanceX", 1, 1, 1, 2, Q("3 mm")),
    Sketcher.Constraint("DistanceY", 0, 2, 0, 1, Q("2 mm")),
    Sketcher.Constraint("DistanceX", 0, 2, -1, 1, Q("7.5 mm")),
    Sketcher.Constraint("DistanceY", -1, 1, 0, 2, Q("3.5 mm")),
    Sketcher.Constraint("DistanceX", 4, 2, 4, 1, Q("2.9914 mm")),
    Sketcher.Constraint("DistanceX", -1, 1, 6, 2, Q("7.498 mm")),
])
pad5 = doc.addObject("PartDesign::Pad", "Pad004")
body.addObject(pad5)
pad5.Profile = sketch9
pad5.Type = "UpToFirst"

doc.recompute()
